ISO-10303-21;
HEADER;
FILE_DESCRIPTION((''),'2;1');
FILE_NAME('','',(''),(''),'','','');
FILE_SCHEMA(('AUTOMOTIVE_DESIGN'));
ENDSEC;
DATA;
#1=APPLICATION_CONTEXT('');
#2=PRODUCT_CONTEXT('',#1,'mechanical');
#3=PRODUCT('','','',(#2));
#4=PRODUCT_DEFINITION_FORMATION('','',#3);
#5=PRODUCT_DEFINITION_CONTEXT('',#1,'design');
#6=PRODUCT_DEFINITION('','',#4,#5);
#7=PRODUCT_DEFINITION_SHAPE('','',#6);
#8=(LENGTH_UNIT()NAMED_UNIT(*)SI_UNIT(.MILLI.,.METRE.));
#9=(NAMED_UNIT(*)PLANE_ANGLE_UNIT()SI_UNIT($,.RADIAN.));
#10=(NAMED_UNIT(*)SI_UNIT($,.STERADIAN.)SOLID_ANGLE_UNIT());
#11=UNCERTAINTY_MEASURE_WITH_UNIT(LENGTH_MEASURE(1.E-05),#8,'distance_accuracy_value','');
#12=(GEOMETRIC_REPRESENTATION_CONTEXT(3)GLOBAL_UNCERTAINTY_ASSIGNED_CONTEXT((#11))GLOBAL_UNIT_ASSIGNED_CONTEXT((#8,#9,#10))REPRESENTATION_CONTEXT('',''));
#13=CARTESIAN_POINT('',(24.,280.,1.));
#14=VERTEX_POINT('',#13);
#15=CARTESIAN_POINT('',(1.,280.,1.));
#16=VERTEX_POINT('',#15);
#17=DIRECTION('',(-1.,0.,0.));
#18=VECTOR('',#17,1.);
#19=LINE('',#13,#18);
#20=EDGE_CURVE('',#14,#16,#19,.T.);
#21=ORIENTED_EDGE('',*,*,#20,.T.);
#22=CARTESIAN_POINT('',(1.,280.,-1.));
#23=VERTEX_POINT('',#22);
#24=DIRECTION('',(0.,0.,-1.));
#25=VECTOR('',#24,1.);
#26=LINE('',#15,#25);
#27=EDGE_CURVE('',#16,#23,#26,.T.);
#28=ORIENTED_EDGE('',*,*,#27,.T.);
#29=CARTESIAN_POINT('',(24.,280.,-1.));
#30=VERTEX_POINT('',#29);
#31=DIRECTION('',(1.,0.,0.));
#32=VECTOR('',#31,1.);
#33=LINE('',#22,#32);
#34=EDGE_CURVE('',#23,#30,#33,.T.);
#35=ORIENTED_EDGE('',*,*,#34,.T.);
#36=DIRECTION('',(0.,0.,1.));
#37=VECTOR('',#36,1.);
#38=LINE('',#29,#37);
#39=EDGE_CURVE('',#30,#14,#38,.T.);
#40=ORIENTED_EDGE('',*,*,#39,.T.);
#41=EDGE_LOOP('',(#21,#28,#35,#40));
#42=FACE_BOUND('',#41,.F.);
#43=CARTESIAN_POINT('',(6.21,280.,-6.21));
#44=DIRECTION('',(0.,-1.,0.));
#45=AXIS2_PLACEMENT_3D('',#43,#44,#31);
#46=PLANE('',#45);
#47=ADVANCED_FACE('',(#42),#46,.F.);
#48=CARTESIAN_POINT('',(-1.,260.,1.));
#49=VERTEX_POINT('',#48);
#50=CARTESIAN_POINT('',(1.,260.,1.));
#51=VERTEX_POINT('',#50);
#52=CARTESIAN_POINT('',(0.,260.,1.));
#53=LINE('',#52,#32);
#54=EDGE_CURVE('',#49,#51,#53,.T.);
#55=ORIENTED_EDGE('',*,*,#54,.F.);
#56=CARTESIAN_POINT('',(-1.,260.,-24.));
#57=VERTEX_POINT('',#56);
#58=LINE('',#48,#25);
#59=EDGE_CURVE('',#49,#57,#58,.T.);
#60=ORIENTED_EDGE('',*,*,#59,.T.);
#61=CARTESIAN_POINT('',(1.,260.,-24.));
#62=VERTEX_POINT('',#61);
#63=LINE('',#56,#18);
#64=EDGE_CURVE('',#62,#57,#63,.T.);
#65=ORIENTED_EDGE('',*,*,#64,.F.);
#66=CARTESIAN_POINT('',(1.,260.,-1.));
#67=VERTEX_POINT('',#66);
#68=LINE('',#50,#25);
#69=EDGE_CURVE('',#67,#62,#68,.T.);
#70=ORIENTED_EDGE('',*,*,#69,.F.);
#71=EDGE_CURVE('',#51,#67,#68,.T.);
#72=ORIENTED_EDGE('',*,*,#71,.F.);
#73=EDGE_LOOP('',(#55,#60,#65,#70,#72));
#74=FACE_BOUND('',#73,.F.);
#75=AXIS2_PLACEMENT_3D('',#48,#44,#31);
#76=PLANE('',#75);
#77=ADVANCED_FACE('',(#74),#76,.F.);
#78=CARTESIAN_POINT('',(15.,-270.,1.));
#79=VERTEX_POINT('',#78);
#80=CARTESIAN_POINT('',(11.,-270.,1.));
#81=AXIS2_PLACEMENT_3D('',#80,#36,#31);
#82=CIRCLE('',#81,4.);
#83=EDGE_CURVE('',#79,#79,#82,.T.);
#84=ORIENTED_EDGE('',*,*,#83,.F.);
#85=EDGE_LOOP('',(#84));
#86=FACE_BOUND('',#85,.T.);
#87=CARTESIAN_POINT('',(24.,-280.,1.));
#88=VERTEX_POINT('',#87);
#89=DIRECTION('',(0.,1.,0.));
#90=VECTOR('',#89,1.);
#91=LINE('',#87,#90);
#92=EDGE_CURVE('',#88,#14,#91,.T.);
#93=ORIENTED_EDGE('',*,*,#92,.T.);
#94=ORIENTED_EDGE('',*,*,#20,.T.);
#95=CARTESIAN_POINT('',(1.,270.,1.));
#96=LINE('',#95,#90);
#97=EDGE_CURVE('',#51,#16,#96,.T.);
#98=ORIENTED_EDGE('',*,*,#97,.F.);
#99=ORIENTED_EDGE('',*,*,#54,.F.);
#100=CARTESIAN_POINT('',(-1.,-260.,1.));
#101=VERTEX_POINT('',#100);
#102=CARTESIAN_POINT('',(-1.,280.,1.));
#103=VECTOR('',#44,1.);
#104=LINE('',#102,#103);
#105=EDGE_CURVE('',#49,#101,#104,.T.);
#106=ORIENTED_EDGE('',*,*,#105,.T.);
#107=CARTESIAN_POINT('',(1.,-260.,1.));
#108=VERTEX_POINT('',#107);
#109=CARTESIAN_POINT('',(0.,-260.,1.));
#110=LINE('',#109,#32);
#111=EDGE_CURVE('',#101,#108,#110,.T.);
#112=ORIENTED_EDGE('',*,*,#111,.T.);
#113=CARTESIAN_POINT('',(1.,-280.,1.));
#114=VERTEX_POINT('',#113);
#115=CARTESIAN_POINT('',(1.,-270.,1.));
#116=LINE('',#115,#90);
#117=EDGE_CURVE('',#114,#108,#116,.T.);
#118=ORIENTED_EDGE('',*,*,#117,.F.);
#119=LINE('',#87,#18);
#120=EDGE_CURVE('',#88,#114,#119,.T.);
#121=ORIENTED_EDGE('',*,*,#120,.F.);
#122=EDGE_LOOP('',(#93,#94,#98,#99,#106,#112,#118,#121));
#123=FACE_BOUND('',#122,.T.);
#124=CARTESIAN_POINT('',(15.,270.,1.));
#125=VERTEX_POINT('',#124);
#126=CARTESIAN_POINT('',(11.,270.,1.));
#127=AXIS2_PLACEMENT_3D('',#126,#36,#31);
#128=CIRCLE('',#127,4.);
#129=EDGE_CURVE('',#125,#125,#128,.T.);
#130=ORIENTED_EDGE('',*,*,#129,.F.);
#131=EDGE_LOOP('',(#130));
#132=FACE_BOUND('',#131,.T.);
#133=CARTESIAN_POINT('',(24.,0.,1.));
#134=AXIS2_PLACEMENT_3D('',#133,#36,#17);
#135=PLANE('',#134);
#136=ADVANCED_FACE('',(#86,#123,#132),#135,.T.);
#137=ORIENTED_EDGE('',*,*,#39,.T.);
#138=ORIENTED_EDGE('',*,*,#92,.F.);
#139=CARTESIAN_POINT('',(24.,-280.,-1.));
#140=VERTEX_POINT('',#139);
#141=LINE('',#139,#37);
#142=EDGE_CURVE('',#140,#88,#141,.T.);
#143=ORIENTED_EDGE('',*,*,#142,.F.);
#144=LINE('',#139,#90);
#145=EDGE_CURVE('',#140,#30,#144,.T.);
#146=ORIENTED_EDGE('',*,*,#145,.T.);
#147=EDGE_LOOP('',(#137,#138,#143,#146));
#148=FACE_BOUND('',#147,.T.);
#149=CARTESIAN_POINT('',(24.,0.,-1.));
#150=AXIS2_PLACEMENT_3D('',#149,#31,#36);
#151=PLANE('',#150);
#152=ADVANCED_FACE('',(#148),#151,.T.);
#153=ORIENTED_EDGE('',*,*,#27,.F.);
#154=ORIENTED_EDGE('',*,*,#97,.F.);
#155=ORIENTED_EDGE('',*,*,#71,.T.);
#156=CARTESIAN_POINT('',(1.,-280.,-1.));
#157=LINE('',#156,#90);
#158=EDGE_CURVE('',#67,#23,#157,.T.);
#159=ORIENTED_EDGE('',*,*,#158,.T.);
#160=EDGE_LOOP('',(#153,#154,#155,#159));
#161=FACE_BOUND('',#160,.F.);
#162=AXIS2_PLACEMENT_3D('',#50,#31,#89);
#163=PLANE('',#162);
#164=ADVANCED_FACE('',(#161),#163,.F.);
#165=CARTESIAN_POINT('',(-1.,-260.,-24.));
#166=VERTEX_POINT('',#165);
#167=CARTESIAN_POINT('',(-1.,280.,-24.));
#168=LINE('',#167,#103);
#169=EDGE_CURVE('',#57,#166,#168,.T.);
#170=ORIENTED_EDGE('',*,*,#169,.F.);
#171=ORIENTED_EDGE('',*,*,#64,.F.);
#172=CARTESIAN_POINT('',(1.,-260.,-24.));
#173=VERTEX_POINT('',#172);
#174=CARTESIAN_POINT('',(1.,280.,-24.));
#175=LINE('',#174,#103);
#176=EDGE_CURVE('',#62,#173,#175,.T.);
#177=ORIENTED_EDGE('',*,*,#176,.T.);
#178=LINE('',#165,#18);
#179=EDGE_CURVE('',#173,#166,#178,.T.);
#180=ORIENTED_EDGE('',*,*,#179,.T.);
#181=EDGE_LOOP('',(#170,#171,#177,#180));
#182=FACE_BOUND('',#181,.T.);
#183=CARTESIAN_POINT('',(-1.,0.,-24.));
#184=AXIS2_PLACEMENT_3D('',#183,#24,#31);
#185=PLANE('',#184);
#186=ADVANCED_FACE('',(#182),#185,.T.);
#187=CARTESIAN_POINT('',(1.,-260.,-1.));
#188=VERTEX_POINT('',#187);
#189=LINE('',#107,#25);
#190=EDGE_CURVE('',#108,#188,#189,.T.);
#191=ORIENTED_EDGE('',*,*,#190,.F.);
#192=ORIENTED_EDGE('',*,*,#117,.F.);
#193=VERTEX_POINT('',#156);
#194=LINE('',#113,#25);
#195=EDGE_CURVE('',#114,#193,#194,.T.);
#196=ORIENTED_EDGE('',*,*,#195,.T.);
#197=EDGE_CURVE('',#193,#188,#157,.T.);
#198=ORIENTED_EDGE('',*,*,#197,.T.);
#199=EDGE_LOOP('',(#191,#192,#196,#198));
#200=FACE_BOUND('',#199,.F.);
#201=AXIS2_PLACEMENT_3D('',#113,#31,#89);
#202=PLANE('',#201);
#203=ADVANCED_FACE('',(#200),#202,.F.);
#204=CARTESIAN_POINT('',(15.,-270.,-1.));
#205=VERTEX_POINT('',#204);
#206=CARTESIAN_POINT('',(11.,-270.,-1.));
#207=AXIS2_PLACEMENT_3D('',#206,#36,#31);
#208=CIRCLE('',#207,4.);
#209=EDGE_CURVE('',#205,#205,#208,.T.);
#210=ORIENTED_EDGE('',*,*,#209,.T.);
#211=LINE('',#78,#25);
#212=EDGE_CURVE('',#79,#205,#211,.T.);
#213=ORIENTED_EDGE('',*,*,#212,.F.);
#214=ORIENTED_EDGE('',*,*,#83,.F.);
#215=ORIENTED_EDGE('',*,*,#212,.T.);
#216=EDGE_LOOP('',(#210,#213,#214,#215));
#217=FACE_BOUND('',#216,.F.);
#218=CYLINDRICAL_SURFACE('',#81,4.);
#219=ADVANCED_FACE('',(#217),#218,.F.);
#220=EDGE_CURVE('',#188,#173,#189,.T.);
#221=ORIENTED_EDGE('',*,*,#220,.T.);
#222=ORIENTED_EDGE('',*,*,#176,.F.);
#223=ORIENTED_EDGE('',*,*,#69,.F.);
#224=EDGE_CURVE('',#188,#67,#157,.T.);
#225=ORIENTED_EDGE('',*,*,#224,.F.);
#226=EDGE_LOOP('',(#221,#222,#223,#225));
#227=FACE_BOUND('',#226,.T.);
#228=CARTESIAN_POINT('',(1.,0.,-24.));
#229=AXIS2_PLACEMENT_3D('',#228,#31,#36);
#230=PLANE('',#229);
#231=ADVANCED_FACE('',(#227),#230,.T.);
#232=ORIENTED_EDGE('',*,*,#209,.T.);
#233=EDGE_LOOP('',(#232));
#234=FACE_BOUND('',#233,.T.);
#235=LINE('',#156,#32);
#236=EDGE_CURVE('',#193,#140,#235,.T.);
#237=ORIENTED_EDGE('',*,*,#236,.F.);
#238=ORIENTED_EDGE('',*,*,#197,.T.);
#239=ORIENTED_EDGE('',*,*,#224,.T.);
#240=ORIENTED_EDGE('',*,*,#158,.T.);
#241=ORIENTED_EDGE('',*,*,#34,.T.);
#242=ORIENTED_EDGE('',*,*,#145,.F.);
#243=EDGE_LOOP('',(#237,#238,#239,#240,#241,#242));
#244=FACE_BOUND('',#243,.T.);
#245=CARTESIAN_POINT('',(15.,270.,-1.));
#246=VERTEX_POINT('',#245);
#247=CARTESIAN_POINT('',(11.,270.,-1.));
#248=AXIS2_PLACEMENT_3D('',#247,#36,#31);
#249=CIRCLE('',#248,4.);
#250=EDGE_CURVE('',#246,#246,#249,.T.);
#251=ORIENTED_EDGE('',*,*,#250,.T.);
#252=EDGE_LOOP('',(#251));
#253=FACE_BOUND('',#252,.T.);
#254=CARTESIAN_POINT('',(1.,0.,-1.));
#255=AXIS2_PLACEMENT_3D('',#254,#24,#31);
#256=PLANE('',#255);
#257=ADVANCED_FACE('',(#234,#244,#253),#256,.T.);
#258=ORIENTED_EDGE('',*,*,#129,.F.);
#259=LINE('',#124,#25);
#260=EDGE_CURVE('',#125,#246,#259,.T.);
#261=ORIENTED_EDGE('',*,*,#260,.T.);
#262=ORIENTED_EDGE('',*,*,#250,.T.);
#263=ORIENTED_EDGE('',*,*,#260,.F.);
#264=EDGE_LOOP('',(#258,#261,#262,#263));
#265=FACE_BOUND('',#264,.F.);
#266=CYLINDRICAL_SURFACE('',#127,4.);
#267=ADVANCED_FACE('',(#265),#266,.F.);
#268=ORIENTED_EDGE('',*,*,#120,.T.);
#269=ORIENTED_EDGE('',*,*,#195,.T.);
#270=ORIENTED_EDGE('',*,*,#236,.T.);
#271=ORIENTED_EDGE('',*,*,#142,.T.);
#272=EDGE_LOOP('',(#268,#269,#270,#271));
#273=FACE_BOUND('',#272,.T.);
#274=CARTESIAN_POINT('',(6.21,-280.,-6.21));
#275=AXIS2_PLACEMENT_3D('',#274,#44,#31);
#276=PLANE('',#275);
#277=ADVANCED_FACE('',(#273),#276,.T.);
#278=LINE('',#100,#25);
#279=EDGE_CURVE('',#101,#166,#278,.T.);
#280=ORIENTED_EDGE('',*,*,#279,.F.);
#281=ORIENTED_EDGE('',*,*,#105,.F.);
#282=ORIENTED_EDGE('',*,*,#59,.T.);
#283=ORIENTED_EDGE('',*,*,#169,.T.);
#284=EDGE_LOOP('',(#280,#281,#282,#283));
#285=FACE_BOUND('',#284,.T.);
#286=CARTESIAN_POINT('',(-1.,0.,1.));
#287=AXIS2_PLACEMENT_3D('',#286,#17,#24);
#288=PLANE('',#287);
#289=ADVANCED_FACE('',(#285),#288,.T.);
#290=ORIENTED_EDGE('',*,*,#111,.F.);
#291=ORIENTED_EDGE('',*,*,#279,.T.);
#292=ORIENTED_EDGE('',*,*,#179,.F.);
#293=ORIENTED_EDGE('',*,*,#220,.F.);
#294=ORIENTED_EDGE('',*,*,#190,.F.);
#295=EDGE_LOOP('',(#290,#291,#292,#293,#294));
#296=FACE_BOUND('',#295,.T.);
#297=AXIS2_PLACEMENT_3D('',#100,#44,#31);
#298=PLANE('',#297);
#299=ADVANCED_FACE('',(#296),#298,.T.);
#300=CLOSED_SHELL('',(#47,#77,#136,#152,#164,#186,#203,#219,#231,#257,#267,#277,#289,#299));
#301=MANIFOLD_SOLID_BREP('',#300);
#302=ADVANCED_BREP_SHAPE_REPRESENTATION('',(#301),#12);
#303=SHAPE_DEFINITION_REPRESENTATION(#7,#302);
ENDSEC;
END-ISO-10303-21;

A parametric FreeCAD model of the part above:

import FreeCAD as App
import Part
import Sketcher

V = App.Vector

doc = App.newDocument("Part")
body = doc.addObject("PartDesign::Body", "Body")

# Sketch on XZ plane
sketch1 = doc.addObject("Sketcher::SketchObject", "Sketch")
body.addObject(sketch1)
sketch1.AttachmentSupport = (doc.XZ_Plane, [""])
sketch1.MapMode = "FlatFace"
sketch1.addGeometry([
    Part.LineSegment(V(24, 1, 0), V(-1, 1, 0)),  # 0
    Part.LineSegment(V(-1, 1, 0), V(-1, -24, 0)),  # 1
    Part.LineSegment(V(-1, -24, 0), V(1, -24, 0)),  # 2
    Part.LineSegment(V(1, -24, 0), V(1, -1, 0)),  # 3
    Part.LineSegment(V(1, -1, 0), V(24, -1, 0)),  # 4
    Part.LineSegment(V(24, -1, 0), V(24, 1, 0)),  # 5
], False)
sketch1.addConstraint([
    Sketcher.Constraint("Coincident", 0, 2, 1, 1),
    Sketcher.Constraint("Coincident", 1, 2, 2, 1),
    Sketcher.Constraint("Coincident", 2, 2, 3, 1),
    Sketcher.Constraint("Coincident", 3, 2, 4, 1),
    Sketcher.Constraint("Coincident", 4, 2, 5, 1),
    Sketcher.Constraint("Coincident", 5, 2, 0, 1),
    Sketcher.Constraint("Horizontal", 0),
    Sketcher.Constraint("Vertical", 1),
    Sketcher.Constraint("Horizontal", 2),
    Sketcher.Constraint("Vertical", 3),
    Sketcher.Constraint("Horizontal", 4),
    Sketcher.Constraint("Vertical", 5),
    Sketcher.Constraint("Symmetric", 0, 2, 3, 2, -1, 1),
    Sketcher.Constraint("Equal", 0, 1),
    Sketcher.Constraint("Equal", 4, 3),
    Sketcher.Constraint("DistanceX", 0, 2, 0, 1, 25.0),
    Sketcher.Constraint("DistanceX", 2, 1, 2, 2, 2.0),
])
pad1 = doc.addObject("PartDesign::Pad", "Pad")
body.addObject(pad1)
pad1.Profile = sketch1
pad1.Length = 560
pad1.Midplane = True

# Sketch on XY plane
sketch2 = doc.addObject("Sketcher::SketchObject", "Sketch001")
body.addObject(sketch2)
sketch2.AttachmentSupport = (doc.XY_Plane, [""])
sketch2.MapMode = "FlatFace"
sketch2.AttachmentOffset = App.Placement(V(0, 0, 1), App.Rotation())
sketch2.addGeometry([
    Part.LineSegment(V(-1, -260, 0), V(-1, -280, 0)),  # 0
    Part.LineSegment(V(-1, -280, 0), V(1, -280, 0)),  # 1
    Part.LineSegment(V(1, -280, 0), V(1, -260, 0)),  # 2
    Part.LineSegment(V(1, -260, 0), V(-1, -260, 0)),  # 3
    Part.LineSegment(V(-1, 280, 0), V(-1, 260, 0)),  # 4
    Part.LineSegment(V(-1, 260, 0), V(1, 260, 0)),  # 5
    Part.LineSegment(V(1, 260, 0), V(1, 280, 0)),  # 6
    Part.LineSegment(V(1, 280, 0), V(-1, 280, 0)),  # 7
    Part.Circle(V(11, 270, 0), V(0, 0, 1), 4),  # 8
    Part.Circle(V(11, -270, 0), V(0, 0, 1), 4),  # 9
], False)
sketch2.addConstraint([
    Sketcher.Constraint("Coincident", 0, 2, 1, 1),
    Sketcher.Constraint("Coincident", 1, 2, 2, 1),
    Sketcher.Constraint("Coincident", 2, 2, 3, 1),
    Sketcher.Constraint("Coincident", 3, 2, 0, 1),
    Sketcher.Constraint("Coincident", 4, 2, 5, 1),
    Sketcher.Constraint("Coincident", 5, 2, 6, 1),
    Sketcher.Constraint("Coincident", 6, 2, 7, 1),
    Sketcher.Constraint("Coincident", 7, 2, 4, 1),
    Sketcher.Constraint("Vertical", 0),
    Sketcher.Constraint("Horizontal", 1),
    Sketcher.Constraint("Vertical", 2),
    Sketcher.Constraint("Horizontal", 3),
    Sketcher.Constraint("Vertical", 4),
    Sketcher.Constraint("Horizontal", 5),
    Sketcher.Constraint("Vertical", 6),
    Sketcher.Constraint("Horizontal", 7),
    Sketcher.Constraint("Equal", 8, 9),
    Sketcher.Constraint("Symmetric", 2, 2, 4, 2, -1, 1),
    Sketcher.Constraint("Symmetric", 0, 2, 6, 2, -1, 1),
    Sketcher.Constraint("Symmetric", 8, 3, 9, 3, -1),
    Sketcher.Constraint("Vertical", 3, 2, 4, 2),
    Sketcher.Constraint("Diameter", 8, 8.0),
    Sketcher.Constraint("DistanceX", 1, 1, 1, 2, 2.0),
    Sketcher.Constraint("DistanceY", 0, 2, 0, 1, 20.0),
    Sketcher.Constraint("DistanceX", -1, 1, 8, 3, 11.0),
    Sketcher.Constraint("DistanceY", -1, 1, 8, 3, 270.0),
    Sketcher.Constraint("DistanceY", 0, 2, -1, 1, 280.0),
])
pocket1 = doc.addObject("PartDesign::Pocket", "Pocket")
body.addObject(pocket1)
pocket1.Profile = sketch2
pocket1.Length = 42

doc.recompute()
